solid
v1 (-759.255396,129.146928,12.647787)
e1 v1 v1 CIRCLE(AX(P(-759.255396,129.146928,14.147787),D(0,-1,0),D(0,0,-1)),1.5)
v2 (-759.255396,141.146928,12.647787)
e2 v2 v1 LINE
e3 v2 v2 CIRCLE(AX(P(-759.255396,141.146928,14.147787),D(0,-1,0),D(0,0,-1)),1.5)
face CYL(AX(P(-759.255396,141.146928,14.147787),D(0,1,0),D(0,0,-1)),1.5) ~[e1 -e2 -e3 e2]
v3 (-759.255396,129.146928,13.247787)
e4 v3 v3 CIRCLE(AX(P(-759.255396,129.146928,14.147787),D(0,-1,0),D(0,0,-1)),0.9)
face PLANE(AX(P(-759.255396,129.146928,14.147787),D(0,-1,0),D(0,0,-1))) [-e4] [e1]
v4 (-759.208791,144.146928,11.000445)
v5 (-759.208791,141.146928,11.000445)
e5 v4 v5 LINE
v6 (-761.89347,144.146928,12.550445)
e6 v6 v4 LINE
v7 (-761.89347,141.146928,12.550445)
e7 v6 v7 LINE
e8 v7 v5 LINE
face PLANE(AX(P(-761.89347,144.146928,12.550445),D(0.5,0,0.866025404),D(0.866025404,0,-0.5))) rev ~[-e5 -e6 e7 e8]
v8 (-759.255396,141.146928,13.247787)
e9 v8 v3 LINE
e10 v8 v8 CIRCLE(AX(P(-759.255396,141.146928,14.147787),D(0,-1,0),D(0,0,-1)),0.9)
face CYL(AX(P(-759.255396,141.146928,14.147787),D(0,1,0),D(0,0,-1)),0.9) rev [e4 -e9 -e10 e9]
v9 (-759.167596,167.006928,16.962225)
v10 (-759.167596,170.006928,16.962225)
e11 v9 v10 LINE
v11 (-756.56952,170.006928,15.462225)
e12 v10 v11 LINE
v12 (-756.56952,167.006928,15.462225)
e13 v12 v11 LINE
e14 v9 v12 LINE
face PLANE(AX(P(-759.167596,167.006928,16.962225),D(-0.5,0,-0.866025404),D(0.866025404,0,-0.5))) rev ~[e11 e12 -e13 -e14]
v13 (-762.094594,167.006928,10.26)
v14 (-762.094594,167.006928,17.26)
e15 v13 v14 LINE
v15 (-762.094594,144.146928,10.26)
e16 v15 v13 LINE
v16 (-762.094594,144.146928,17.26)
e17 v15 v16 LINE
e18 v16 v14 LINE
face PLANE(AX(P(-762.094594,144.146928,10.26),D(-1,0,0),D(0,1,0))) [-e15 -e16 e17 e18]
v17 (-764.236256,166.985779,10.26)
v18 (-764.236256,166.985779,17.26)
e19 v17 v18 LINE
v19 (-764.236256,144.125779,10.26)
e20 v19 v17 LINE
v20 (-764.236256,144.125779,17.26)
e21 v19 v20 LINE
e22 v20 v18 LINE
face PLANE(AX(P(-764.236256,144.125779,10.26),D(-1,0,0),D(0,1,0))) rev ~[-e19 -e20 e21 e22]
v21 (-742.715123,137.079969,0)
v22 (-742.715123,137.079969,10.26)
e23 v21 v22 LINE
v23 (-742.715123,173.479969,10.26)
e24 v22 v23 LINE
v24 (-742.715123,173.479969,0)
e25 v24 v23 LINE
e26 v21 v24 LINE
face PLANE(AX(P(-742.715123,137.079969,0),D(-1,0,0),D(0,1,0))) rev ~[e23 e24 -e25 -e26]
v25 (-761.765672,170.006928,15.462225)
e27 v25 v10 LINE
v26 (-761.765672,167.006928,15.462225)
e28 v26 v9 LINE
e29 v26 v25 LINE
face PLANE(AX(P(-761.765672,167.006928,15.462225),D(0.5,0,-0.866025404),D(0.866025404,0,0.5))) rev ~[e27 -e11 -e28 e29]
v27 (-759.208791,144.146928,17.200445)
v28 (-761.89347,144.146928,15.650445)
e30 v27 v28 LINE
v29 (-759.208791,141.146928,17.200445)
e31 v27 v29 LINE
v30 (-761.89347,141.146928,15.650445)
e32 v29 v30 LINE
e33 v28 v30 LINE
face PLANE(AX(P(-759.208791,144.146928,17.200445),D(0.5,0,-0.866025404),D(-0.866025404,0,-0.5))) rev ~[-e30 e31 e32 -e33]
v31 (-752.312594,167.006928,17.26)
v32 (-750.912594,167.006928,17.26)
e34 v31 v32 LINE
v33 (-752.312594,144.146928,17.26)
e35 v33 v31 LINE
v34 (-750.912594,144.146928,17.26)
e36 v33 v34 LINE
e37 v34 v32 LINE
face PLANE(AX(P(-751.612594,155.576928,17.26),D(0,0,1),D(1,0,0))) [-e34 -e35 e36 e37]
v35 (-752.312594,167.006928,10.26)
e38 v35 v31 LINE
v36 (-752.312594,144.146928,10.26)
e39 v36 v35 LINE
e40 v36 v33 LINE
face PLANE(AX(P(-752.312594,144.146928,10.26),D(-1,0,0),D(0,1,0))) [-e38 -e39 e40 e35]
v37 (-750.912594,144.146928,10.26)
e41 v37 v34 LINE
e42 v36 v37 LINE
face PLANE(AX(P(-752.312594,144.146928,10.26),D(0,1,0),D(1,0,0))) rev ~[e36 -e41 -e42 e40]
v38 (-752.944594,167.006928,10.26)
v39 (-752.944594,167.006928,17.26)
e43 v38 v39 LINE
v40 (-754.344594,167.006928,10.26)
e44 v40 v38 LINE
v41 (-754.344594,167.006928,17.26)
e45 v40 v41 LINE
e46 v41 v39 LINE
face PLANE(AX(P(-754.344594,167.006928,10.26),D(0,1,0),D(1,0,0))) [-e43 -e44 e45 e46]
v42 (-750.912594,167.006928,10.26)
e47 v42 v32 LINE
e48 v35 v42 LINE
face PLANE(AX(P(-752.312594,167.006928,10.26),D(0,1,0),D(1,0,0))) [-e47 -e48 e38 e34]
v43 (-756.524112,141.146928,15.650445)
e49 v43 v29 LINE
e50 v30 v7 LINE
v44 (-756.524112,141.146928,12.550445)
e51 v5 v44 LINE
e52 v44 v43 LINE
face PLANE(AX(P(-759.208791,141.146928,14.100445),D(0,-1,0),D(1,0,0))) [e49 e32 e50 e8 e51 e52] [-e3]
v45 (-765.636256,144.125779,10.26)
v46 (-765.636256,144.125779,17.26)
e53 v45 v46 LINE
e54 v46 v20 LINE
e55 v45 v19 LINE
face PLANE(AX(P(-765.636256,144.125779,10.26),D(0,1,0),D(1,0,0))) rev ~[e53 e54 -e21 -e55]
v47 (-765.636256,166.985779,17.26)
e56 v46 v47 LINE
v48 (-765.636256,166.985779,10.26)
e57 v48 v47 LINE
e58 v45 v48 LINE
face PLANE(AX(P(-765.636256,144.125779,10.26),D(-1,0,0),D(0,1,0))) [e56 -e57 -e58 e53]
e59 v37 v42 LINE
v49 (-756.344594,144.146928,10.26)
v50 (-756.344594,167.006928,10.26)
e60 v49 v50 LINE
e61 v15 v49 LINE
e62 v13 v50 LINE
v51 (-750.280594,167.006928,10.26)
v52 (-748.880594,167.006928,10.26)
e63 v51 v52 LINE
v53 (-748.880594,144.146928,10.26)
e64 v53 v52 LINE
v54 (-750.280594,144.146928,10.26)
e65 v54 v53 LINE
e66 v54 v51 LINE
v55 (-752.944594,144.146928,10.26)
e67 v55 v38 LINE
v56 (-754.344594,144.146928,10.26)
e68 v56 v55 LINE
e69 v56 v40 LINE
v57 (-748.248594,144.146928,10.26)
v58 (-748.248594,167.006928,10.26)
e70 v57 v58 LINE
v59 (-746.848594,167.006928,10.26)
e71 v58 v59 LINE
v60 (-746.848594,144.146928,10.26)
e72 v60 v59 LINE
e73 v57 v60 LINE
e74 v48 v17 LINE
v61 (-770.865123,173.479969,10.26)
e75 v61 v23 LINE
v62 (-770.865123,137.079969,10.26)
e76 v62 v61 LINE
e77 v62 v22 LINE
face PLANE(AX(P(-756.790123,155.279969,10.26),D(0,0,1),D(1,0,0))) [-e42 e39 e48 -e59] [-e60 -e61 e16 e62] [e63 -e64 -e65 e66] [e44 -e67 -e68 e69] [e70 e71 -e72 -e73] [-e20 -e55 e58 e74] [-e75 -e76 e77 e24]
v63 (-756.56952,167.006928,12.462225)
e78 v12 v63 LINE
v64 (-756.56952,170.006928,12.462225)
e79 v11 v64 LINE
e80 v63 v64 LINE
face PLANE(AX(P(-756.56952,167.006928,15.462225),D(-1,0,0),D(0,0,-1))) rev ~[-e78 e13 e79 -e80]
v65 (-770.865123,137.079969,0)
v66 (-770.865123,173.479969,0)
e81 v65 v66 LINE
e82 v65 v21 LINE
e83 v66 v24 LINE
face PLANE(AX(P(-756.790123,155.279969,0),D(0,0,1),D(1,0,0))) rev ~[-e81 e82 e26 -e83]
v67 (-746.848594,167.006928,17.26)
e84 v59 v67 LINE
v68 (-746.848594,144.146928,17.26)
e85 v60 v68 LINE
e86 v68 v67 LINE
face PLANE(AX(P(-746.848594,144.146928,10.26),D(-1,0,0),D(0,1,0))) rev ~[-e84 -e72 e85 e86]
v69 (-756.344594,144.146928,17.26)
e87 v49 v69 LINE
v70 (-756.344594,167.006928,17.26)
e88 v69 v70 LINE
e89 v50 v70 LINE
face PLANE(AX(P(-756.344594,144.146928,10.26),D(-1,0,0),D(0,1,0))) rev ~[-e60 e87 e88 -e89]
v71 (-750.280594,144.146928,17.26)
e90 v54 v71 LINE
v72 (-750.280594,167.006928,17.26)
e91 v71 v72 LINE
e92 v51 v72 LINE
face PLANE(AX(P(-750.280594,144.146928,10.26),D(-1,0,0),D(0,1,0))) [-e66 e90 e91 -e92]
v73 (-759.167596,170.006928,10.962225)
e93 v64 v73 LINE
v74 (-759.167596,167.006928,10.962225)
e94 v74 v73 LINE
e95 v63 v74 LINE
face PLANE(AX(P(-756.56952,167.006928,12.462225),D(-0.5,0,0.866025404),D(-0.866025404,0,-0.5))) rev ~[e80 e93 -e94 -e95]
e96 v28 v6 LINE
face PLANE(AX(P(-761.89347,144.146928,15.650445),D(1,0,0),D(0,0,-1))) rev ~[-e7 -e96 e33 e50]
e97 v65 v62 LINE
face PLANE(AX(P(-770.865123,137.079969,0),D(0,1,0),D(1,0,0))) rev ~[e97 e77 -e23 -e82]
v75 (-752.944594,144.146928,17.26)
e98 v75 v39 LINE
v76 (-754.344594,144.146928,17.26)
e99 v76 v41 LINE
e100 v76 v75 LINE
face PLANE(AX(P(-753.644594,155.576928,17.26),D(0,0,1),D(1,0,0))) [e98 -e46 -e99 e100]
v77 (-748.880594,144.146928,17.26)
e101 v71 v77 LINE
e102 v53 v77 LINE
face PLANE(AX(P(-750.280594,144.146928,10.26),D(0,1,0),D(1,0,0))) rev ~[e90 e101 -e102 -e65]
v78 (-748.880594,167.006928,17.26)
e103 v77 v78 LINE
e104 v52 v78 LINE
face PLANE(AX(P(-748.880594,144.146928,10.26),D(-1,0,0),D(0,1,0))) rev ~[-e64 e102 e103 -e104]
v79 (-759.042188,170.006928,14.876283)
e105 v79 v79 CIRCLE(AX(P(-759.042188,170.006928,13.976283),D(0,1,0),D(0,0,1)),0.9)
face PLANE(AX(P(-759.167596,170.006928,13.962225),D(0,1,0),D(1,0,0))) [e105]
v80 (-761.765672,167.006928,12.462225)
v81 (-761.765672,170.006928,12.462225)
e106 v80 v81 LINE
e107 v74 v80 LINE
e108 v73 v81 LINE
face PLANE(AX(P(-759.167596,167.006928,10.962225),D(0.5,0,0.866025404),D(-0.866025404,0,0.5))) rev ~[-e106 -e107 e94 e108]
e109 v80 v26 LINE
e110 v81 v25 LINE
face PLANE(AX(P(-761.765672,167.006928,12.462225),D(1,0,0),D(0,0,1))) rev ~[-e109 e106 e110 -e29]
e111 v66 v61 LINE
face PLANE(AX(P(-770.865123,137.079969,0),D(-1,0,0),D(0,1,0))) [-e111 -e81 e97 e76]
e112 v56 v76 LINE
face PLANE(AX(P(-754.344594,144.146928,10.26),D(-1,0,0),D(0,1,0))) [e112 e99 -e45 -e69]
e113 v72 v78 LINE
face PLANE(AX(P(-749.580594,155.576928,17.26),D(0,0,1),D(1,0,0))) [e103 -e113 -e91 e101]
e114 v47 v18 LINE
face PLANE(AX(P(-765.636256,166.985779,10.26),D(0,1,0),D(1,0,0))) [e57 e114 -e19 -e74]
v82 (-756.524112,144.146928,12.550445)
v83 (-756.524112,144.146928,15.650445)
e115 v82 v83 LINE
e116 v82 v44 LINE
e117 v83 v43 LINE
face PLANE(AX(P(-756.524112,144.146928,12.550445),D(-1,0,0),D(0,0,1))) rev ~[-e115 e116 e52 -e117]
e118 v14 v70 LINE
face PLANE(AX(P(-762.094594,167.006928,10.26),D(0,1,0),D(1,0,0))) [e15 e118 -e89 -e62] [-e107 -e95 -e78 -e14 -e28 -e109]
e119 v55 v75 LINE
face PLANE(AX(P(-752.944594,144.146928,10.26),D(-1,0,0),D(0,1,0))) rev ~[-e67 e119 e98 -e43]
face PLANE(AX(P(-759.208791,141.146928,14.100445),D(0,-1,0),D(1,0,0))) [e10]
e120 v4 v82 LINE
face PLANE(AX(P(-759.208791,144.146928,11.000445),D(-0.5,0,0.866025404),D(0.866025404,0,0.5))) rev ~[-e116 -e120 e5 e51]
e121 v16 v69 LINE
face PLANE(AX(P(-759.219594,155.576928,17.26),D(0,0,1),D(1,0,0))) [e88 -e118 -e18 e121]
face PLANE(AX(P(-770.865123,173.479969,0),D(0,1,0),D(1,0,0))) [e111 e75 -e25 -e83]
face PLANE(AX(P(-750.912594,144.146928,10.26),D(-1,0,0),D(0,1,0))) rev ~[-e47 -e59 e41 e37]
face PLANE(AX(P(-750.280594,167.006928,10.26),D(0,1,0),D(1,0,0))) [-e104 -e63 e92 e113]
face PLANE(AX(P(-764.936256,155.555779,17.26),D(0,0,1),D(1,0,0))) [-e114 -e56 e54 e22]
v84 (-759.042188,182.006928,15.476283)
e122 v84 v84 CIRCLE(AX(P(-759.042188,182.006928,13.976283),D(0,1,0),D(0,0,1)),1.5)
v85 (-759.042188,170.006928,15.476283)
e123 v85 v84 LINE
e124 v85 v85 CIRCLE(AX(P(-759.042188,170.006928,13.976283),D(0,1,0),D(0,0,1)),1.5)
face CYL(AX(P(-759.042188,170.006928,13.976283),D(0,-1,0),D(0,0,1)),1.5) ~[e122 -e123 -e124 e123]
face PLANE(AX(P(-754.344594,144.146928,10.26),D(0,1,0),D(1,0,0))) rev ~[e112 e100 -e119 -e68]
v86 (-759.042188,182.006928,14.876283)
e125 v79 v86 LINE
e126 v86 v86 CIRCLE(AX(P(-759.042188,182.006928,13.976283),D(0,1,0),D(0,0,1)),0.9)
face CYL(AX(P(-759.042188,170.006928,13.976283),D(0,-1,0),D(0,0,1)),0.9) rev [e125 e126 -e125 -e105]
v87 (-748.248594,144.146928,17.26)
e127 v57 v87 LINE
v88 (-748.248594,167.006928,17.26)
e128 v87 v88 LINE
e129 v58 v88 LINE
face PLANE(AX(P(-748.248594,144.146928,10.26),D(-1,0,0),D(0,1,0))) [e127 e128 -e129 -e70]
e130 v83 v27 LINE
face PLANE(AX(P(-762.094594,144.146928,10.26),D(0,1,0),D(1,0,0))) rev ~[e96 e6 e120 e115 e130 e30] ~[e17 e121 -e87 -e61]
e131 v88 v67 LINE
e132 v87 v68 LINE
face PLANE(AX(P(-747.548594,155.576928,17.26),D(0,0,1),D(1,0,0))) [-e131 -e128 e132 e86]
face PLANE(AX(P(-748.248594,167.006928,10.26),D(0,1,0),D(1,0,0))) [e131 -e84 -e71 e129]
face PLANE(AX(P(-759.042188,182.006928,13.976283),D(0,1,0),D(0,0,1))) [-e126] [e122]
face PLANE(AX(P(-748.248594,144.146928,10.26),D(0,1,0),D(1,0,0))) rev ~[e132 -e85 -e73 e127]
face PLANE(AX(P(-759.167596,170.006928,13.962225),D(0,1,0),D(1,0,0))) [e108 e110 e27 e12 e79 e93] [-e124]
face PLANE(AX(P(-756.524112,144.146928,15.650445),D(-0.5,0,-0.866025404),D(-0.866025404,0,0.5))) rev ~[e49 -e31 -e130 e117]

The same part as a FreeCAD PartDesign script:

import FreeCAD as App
import Part
import Sketcher

V = App.Vector
Q = App.Units.Quantity

doc = App.newDocument("Part")
body = doc.addObject("PartDesign::Body", "Body")

sketch1 = doc.addObject("Sketcher::SketchObject", "Sketch")
body.addObject(sketch1)
sketch1.AttachmentSupport = (doc.XY_Plane, [""])
sketch1.MapMode = "FlatFace"
sketch1.addGeometry([
    Part.LineSegment(V(-771, 173, 0), V(-771, 137, 0)),
    Part.LineSegment(V(-771, 137, 0), V(-743, 137, 0)),
    Part.LineSegment(V(-743, 137, 0), V(-743, 173, 0)),
    Part.LineSegment(V(-743, 173, 0), V(-771, 173, 0)),
], False)
sketch1.addConstraint([
    Sketcher.Constraint("Coincident", 0, 2, 1, 1),
    Sketcher.Constraint("Coincident", 1, 2, 2, 1),
    Sketcher.Constraint("Coincident", 2, 2, 3, 1),
    Sketcher.Constraint("Coincident", 3, 2, 0, 1),
    Sketcher.Constraint("Vertical", 0),
    Sketcher.Constraint("Horizontal", 1),
    Sketcher.Constraint("Vertical", 2),
    Sketcher.Constraint("Horizontal", 3),
    Sketcher.Constraint("DistanceY", 0, 2, 0, 1, 36.4),
    Sketcher.Constraint("DistanceX", 1, 1, 1, 2, 28.15),
    Sketcher.Constraint("DistanceY", -1, 1, 0, 2, 137.079969),
    Sketcher.Constraint("DistanceX", 0, 2, -1, 1, 770.865123),
])
pad1 = doc.addObject("PartDesign::Pad", "Pad")
body.addObject(pad1)
pad1.Profile = sketch1
pad1.Length = 10.26

sketch2 = doc.addObject("Sketcher::SketchObject", "Sketch001")
body.addObject(sketch2)
sketch2.AttachmentSupport = (doc.XY_Plane, [""])
sketch2.MapMode = "FlatFace"
sketch2.AttachmentOffset = App.Placement(V(0, 0, 10.26), App.Rotation())
sketch2.addGeometry([
    Part.LineSegment(V(-762.1, 167, 0), V(-762.1, 144.1, 0)),
    Part.LineSegment(V(-762.1, 144.1, 0), V(-756.3, 144.1, 0)),
    Part.LineSegment(V(-756.3, 144.1, 0), V(-756.3, 167, 0)),
    Part.LineSegment(V(-756.3, 167, 0), V(-762.1, 167, 0)),
    Part.LineSegment(V(-754.3, 167, 0), V(-754.3, 144.1, 0)),
    Part.LineSegment(V(-754.3, 144.1, 0), V(-752.9, 144.1, 0)),
    Part.LineSegment(V(-752.9, 144.1, 0), V(-752.9, 167, 0)),
    Part.LineSegment(V(-752.9, 167, 0), V(-754.3, 167, 0)),
    Part.LineSegment(V(-750.3, 167, 0), V(-750.3, 144.1, 0)),
    Part.LineSegment(V(-750.3, 144.1, 0), V(-748.9, 144.1, 0)),
    Part.LineSegment(V(-748.9, 144.1, 0), V(-748.9, 167, 0)),
    Part.LineSegment(V(-748.9, 167, 0), V(-750.3, 167, 0)),
    Part.LineSegment(V(-748.2, 167, 0), V(-748.2, 144.1, 0)),
    Part.LineSegment(V(-748.2, 144.1, 0), V(-746.8, 144.1, 0)),
    Part.LineSegment(V(-746.8, 144.1, 0), V(-746.8, 167, 0)),
    Part.LineSegment(V(-746.8, 167, 0), V(-748.2, 167, 0)),
    Part.LineSegment(V(-752.3, 167, 0), V(-752.3, 144.1, 0)),
    Part.LineSegment(V(-752.3, 144.1, 0), V(-750.9, 144.1, 0)),
    Part.LineSegment(V(-750.9, 144.1, 0), V(-750.9, 167, 0)),
    Part.LineSegment(V(-750.9, 167, 0), V(-752.3, 167, 0)),
    Part.LineSegment(V(-765.6, 167, 0), V(-765.6, 144.1, 0)),
    Part.LineSegment(V(-765.6, 144.1, 0), V(-764.2, 144.1, 0)),
    Part.LineSegment(V(-764.2, 144.1, 0), V(-764.2, 167, 0)),
    Part.LineSegment(V(-764.2, 167, 0), V(-765.6, 167, 0)),
], False)
sketch2.addConstraint([
    Sketcher.Constraint("Coincident", 0, 2, 1, 1),
    Sketcher.Constraint("Coincident", 1, 2, 2, 1),
    Sketcher.Constraint("Coincident", 2, 2, 3, 1),
    Sketcher.Constraint("Coincident", 3, 2, 0, 1),
    Sketcher.Constraint("Coincident", 4, 2, 5, 1),
    Sketcher.Constraint("Coincident", 5, 2, 6, 1),
    Sketcher.Constraint("Coincident", 6, 2, 7, 1),
    Sketcher.Constraint("Coincident", 7, 2, 4, 1),
    Sketcher.Constraint("Coincident", 8, 2, 9, 1),
    Sketcher.Constraint("Coincident", 9, 2, 10, 1),
    Sketcher.Constraint("Coincident", 10, 2, 11, 1),
    Sketcher.Constraint("Coincident", 11, 2, 8, 1),
    Sketcher.Constraint("Coincident", 12, 2, 13, 1),
    Sketcher.Constraint("Coincident", 13, 2, 14, 1),
    Sketcher.Constraint("Coincident", 14, 2, 15, 1),
    Sketcher.Constraint("Coincident", 15, 2, 12, 1),
    Sketcher.Constraint("Coincident", 16, 2, 17, 1),
    Sketcher.Constraint("Coincident", 17, 2, 18, 1),
    Sketcher.Constraint("Coincident", 18, 2, 19, 1),
    Sketcher.Constraint("Coincident", 19, 2, 16, 1),
    Sketcher.Constraint("Coincident", 20, 2, 21, 1),
    Sketcher.Constraint("Coincident", 21, 2, 22, 1),
    Sketcher.Constraint("Coincident", 22, 2, 23, 1),
    Sketcher.Constraint("Coincident", 23, 2, 20, 1),
    Sketcher.Constraint("Vertical", 0),
    Sketcher.Constraint("Horizontal", 1),
    Sketcher.Constraint("Vertical", 2),
    Sketcher.Constraint("Horizontal", 3),
    Sketcher.Constraint("Vertical", 4),
    Sketcher.Constraint("Horizontal", 5),
    Sketcher.Constraint("Vertical", 6),
    Sketcher.Constraint("Horizontal", 7),
    Sketcher.Constraint("Vertical", 8),
    Sketcher.Constraint("Horizontal", 9),
    Sketcher.Constraint("Vertical", 10),
    Sketcher.Constraint("Horizontal", 11),
    Sketcher.Constraint("Vertical", 12),
    Sketcher.Constraint("Horizontal", 13),
    Sketcher.Constraint("Vertical", 14),
    Sketcher.Constraint("Horizontal", 15),
    Sketcher.Constraint("Vertical", 16),
    Sketcher.Constraint("Horizontal", 17),
    Sketcher.Constraint("Vertical", 18),
    Sketcher.Constraint("Horizontal", 19),
    Sketcher.Constraint("Vertical", 20),
    Sketcher.Constraint("Horizontal", 21),
    Sketcher.Constraint("Vertical", 22),
    Sketcher.Constraint("Horizontal", 23),
    Sketcher.Constraint("Horizontal", 1, 2, 4, 2),
    Sketcher.Constraint("Horizontal", 3, 2, 6, 2),
    Sketcher.Constraint("Horizontal", 5, 2, 8, 2),
    Sketcher.Constraint("Horizontal", 7, 2, 10, 2),
    Sketcher.Constraint("Horizontal", 9, 2, 12, 2),
    Sketcher.Constraint("Horizontal", 11, 2, 14, 2),
    Sketcher.Constraint("Horizontal", 13, 2, 16, 2),
    Sketcher.Constraint("Horizontal", 15, 2, 18, 2),
    Sketcher.Constraint("Equal", 7, 9),
    Sketcher.Constraint("Equal", 11, 13),
    Sketcher.Constraint("Equal", 15, 17),
    Sketcher.Constraint("Equal", 19, 21),
    Sketcher.Constraint("Equal", 18, 20),
    Sketcher.Constraint("DistanceX", 5, 1, 5, 2, 1.4),
    Sketcher.Constraint("DistanceX", 1, 2, 4, 2, 2.0),
    Sketcher.Constraint("DistanceX", 1, 1, 1, 2, 5.75),
    Sketcher.Constraint("DistanceY", 0, 2, 0, 1, 22.86),
    Sketcher.Constraint("DistanceX", 5, 2, 8, 2, 2.664),
    Sketcher.Constraint("DistanceX", 9, 2, 12, 2, 0.632),
    Sketcher.Constraint("DistanceX", 5, 2, 16, 2, 0.632),
    Sketcher.Constraint("DistanceY", -1, 1, 20, 2, 144.125779),
    Sketcher.Constraint("DistanceY", 20, 2, 0, 2, 0.021149),
    Sketcher.Constraint("DistanceX", 0, 2, -1, 1, 762.094594),
    Sketcher.Constraint("DistanceX", 20, 2, -1, 1, 765.636256),
])
pad2 = doc.addObject("PartDesign::Pad", "Pad001")
body.addObject(pad2)
pad2.Profile = sketch2
pad2.Length = 7

sketch3 = doc.addObject("Sketcher::SketchObject", "Sketch002")
body.addObject(sketch3)
sketch3.AttachmentSupport = (doc.XZ_Plane, [""])
sketch3.MapMode = "FlatFace"
sketch3.AttachmentOffset = App.Placement(V(0, 0, -144.146928), App.Rotation())
sketch3.addGeometry([
    Part.LineSegment(V(-759.2, 11, 0), V(-756.5, 12.6, 0)),
    Part.LineSegment(V(-756.5, 12.6, 0), V(-756.5, 15.7, 0)),
    Part.LineSegment(V(-756.5, 15.7, 0), V(-759.2, 17.2, 0)),
    Part.LineSegment(V(-759.2, 17.2, 0), V(-761.9, 15.7, 0)),
    Part.LineSegment(V(-761.9, 15.7, 0), V(-761.9, 12.6, 0)),
    Part.LineSegment(V(-761.9, 12.6, 0), V(-759.2, 11, 0)),
], False)
sketch3.addConstraint([
    Sketcher.Constraint("Coincident", 0, 2, 1, 1),
    Sketcher.Constraint("Coincident", 1, 2, 2, 1),
    Sketcher.Constraint("Coincident", 2, 2, 3, 1),
    Sketcher.Constraint("Coincident", 3, 2, 4, 1),
    Sketcher.Constraint("Coincident", 4, 2, 5, 1),
    Sketcher.Constraint("Coincident", 5, 2, 0, 1),
    Sketcher.Constraint("Vertical", 1),
    Sketcher.Constraint("Vertical", 4),
    Sketcher.Constraint("Parallel", 0, 3),
    Sketcher.Constraint("Parallel", 2, 5),
    Sketcher.Constraint("Horizontal", 1, 2, 3, 2),
    Sketcher.Constraint("Horizontal", 0, 2, 4, 2),
    Sketcher.Constraint("Vertical", 2, 2, 5, 2),
    Sketcher.Constraint("Angle", 0, Q("30 deg")),
    Sketcher.Constraint("DistanceY", 1, 1, 1, 2, 3.1),
    Sketcher.Constraint("Distance", 0, 3.1),
    Sketcher.Constraint("DistanceX", 2, 2, -1, 1, 759.208791),
    Sketcher.Constraint("DistanceY", -1, 1, 0, 2, 12.550445),
])
pad3 = doc.addObject("PartDesign::Pad", "Pad002")
body.addObject(pad3)
pad3.Profile = sketch3
pad3.Length = 3

sketch4 = doc.addObject("Sketcher::SketchObject", "Sketch003")
body.addObject(sketch4)
sketch4.AttachmentSupport = (doc.XZ_Plane, [""])
sketch4.MapMode = "FlatFace"
sketch4.AttachmentOffset = App.Placement(V(0, 0, -141.146928), App.Rotation())
sketch4.addGeometry([
    Part.Circle(V(-759.3, 14.1, 0), V(0, 0, 1), 1.5),
    Part.Circle(V(-759.3, 14.1, 0), V(0, 0, 1), 0.9),
], False)
sketch4.addConstraint([
    Sketcher.Constraint("Coincident", 1, 3, 0, 3),
    Sketcher.Constraint("Diameter", 0, 3.0),
    Sketcher.Constraint("Diameter", 1, 1.8),
    Sketcher.Constraint("DistanceX", 0, 3, -1, 1, 759.255396),
    Sketcher.Constraint("DistanceY", -1, 1, 0, 3, 14.147787),
])
pad4 = doc.addObject("PartDesign::Pad", "Pad003")
body.addObject(pad4)
pad4.Profile = sketch4
pad4.Length = 12

sketch5 = doc.addObject("Sketcher::SketchObject", "Sketch004")
body.addObject(sketch5)
sketch5.AttachmentSupport = (doc.XZ_Plane, [""])
sketch5.MapMode = "FlatFace"
sketch5.AttachmentOffset = App.Placement(V(0, 0, -167.006928), App.Rotation())
sketch5.addGeometry([
    Part.LineSegment(V(-759.2, 17, 0), V(-756.6, 15.5, 0)),
    Part.LineSegment(V(-756.6, 15.5, 0), V(-756.6, 12.5, 0)),
    Part.LineSegment(V(-756.6, 12.5, 0), V(-759.2, 11, 0)),
    Part.LineSegment(V(-759.2, 11, 0), V(-761.8, 12.5, 0)),
    Part.LineSegment(V(-761.8, 12.5, 0), V(-761.8, 15.5, 0)),
    Part.LineSegment(V(-761.8, 15.5, 0), V(-759.2, 17, 0)),
], False)
sketch5.addConstraint([
    Sketcher.Constraint("Coincident", 0, 2, 1, 1),
    Sketcher.Constraint("Coincident", 1, 2, 2, 1),
    Sketcher.Constraint("Coincident", 2, 2, 3, 1),
    Sketcher.Constraint("Coincident", 3, 2, 4, 1),
    Sketcher.Constraint("Coincident", 4, 2, 5, 1),
    Sketcher.Constraint("Coincident", 5, 2, 0, 1),
    Sketcher.Constraint("Vertical", 1),
    Sketcher.Constraint("Vertical", 4),
    Sketcher.Constraint("Parallel", 0, 3),
    Sketcher.Constraint("Parallel", 2, 5),
    Sketcher.Constraint("Horizontal", 1, 2, 3, 2),
    Sketcher.Constraint("Horizontal", 0, 2, 4, 2),
    Sketcher.Constraint("Vertical", 2, 2, 5, 2),
    Sketcher.Constraint("DistanceY", 1, 2, 1, 1, 3.0),
    Sketcher.Constraint("Angle", 0, Q("-30 deg")),
    Sketcher.Constraint("Distance", 0, 3.0),
    Sketcher.Constraint("DistanceX", 0, 2, -1, 1, 756.56952),
    Sketcher.Constraint("DistanceY", -1, 1, 0, 2, 15.462225),
])
pad5 = doc.addObject("PartDesign::Pad", "Pad004")
body.addObject(pad5)
pad5.Profile = sketch5
pad5.Length = 3
pad5.Reversed = True

sketch6 = doc.addObject("Sketcher::SketchObject", "Sketch005")
body.addObject(sketch6)
sketch6.AttachmentSupport = (doc.XZ_Plane, [""])
sketch6.MapMode = "FlatFace"
sketch6.AttachmentOffset = App.Placement(V(0, 0, -170.006928), App.Rotation())
sketch6.addGeometry([
    Part.Circle(V(-759, 14, 0), V(0, 0, 1), 1.5),
    Part.Circle(V(-759, 14, 0), V(0, 0, 1), 0.9),
], False)
sketch6.addConstraint([
    Sketcher.Constraint("Coincident", 1, 3, 0, 3),
    Sketcher.Constraint("Diameter", 0, 3.0),
    Sketcher.Constraint("Diameter", 1, 1.8),
    Sketcher.Constraint("DistanceX", 0, 3, -1, 1, 759.042188),
    Sketcher.Constraint("DistanceY", -1, 1, 0, 3, 13.976283),
])
pad6 = doc.addObject("PartDesign::Pad", "Pad005")
body.addObject(pad6)
pad6.Profile = sketch6
pad6.Length = 12
pad6.Reversed = True

doc.recompute()
